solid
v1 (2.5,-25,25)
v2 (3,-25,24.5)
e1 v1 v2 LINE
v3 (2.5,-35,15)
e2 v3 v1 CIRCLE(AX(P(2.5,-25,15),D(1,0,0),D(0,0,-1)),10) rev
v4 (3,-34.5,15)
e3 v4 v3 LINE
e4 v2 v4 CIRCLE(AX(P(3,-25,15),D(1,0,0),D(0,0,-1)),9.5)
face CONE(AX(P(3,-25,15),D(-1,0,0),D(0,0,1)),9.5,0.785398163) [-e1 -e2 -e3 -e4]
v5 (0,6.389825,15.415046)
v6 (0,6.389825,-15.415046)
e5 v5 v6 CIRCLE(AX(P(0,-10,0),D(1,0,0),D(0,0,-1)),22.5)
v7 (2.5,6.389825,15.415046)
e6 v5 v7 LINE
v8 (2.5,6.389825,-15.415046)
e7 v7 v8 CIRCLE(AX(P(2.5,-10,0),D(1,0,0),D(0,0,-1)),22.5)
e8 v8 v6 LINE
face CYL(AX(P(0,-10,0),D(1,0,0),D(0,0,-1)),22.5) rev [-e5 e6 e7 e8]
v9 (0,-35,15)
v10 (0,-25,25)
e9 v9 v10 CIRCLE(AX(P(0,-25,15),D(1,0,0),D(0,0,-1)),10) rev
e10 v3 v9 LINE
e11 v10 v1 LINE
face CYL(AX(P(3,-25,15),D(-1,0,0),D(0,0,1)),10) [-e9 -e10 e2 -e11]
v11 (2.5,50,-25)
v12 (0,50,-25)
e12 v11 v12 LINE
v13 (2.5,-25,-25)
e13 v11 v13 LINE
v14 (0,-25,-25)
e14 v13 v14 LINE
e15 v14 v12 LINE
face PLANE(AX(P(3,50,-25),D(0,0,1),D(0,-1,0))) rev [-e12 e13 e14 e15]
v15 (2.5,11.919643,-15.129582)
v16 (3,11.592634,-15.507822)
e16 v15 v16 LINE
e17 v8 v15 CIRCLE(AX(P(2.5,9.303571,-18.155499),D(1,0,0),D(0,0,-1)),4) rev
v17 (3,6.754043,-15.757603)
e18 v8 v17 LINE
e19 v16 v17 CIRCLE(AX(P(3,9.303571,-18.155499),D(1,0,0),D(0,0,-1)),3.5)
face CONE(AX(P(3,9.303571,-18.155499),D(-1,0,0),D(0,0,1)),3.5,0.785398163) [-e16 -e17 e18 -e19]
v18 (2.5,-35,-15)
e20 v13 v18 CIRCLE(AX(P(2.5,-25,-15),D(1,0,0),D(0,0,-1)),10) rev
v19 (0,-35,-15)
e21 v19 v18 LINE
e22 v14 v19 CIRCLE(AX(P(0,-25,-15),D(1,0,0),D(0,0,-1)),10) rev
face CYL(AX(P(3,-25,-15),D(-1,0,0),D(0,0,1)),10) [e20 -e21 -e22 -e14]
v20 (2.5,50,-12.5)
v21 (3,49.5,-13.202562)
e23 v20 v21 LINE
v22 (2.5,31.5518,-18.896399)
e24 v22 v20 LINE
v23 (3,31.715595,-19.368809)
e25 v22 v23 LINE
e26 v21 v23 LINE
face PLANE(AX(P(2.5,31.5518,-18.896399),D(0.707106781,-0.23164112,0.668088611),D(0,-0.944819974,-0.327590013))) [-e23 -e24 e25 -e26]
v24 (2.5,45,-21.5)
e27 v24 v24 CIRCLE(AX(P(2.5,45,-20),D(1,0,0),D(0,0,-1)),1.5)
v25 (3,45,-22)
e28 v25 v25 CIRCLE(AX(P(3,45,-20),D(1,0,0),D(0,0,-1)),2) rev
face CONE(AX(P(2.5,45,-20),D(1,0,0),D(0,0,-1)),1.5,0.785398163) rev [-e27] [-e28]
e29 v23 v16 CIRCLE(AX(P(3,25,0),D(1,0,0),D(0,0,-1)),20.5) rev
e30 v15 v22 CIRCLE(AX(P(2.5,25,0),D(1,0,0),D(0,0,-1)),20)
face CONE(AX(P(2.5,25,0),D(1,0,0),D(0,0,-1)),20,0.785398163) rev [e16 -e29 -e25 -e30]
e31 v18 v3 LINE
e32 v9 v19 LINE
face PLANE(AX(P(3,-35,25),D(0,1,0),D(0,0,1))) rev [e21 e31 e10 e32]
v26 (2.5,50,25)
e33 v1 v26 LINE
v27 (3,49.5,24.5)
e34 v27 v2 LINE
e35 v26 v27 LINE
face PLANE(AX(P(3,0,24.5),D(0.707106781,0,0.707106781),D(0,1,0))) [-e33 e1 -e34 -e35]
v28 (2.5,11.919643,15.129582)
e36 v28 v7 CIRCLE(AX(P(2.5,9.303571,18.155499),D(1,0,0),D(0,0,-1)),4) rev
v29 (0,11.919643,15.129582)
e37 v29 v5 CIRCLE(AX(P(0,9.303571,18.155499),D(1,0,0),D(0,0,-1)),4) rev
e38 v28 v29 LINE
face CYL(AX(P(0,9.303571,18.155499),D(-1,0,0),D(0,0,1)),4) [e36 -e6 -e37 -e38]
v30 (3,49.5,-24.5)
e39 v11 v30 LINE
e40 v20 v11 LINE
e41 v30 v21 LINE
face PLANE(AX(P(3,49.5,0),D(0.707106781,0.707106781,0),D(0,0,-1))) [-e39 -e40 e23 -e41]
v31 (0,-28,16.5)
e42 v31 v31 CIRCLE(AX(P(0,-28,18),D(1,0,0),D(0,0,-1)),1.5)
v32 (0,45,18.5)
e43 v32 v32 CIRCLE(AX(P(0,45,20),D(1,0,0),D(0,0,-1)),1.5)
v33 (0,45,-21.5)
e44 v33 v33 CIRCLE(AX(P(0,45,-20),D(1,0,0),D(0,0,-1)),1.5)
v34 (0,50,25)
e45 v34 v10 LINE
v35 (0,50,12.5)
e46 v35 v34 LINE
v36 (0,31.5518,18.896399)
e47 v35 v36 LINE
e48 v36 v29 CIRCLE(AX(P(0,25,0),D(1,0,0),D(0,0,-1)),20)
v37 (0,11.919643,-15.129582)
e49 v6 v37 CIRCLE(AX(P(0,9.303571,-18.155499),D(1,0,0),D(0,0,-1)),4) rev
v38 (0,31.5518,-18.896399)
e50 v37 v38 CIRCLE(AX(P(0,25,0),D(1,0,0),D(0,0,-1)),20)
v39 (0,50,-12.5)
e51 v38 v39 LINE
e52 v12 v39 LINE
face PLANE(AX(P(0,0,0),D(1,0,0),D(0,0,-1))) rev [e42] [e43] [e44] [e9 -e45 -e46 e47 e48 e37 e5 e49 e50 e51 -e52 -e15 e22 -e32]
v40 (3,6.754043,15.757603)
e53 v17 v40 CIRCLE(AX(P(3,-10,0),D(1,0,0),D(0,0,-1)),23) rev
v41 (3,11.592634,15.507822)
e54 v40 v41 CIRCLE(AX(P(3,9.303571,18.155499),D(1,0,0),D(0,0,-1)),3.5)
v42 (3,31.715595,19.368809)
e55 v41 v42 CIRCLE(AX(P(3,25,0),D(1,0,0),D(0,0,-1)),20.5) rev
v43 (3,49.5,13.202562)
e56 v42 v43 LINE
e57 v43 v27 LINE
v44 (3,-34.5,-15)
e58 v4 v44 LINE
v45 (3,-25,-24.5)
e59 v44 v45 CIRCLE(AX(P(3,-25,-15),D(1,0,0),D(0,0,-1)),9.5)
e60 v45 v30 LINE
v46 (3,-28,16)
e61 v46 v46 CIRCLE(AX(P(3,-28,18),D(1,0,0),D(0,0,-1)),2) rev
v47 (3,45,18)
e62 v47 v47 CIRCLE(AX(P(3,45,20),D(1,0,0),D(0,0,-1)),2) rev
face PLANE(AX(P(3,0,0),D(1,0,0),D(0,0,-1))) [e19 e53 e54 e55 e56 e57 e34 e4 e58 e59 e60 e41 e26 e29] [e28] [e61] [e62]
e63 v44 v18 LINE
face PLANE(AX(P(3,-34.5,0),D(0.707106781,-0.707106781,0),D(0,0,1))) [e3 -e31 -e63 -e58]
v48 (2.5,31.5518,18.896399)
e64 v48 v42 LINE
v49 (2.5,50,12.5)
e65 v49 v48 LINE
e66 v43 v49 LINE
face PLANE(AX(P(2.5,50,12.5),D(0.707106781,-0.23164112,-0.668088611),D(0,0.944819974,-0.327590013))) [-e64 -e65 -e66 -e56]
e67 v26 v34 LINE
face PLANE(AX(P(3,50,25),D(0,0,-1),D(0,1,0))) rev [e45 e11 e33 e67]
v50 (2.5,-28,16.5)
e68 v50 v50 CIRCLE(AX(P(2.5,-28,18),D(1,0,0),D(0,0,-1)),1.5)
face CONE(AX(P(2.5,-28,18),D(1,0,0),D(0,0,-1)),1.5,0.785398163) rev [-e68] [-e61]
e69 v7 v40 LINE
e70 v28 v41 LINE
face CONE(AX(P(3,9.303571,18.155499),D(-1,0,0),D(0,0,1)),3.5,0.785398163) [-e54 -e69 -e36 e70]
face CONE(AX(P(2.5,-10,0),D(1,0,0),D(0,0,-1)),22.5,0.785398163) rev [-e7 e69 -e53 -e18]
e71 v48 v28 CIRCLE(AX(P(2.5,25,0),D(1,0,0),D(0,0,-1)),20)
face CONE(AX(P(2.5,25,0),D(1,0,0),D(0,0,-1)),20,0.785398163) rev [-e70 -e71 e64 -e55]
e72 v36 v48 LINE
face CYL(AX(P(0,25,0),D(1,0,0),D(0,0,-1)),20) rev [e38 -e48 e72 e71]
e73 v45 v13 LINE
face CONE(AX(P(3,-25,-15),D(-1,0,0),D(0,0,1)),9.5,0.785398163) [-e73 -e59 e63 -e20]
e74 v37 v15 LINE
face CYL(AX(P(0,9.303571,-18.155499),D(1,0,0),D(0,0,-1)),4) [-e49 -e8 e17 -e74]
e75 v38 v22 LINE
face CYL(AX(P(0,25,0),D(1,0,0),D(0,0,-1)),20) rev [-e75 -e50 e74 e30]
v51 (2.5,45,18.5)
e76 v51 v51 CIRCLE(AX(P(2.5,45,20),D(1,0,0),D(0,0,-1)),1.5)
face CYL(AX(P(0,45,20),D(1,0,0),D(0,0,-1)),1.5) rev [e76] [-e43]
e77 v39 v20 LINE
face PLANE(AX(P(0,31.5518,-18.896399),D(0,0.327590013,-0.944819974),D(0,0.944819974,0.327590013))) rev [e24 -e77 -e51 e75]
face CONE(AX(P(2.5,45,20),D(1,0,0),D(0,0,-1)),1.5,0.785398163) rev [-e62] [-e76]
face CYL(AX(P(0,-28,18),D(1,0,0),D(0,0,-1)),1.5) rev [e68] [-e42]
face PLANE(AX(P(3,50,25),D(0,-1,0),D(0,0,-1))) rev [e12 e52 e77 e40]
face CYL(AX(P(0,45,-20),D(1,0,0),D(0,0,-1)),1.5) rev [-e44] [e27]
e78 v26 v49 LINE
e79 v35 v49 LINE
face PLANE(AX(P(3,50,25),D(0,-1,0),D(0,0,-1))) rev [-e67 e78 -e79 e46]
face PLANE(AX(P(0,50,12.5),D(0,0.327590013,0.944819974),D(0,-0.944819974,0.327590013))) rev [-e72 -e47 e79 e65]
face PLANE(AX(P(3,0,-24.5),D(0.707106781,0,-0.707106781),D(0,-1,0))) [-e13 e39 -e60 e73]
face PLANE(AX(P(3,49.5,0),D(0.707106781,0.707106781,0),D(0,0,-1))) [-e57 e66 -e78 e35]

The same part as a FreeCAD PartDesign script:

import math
import FreeCAD as App
import Part
import Sketcher
from FreeCAD import Vector


def edges_at(feature, points):
    """Names of the edges that pass closest to the given points."""
    edges = feature.Shape.Edges
    near = lambda p: min(range(len(edges)), key=lambda i: edges[i].distToShape(Part.Vertex(*p))[0])
    return sorted({f"Edge{near(p) + 1}" for p in points})


def add_polygon(sketch, points):
    """Adds a closed chain of lines whose ends are joined by coincident constraints."""
    first, n = sketch.GeometryCount, len(points)
    for a, b in zip(points, points[1:] + points[:1]):
        sketch.addGeometry(Part.LineSegment(App.Vector(*a, 0), App.Vector(*b, 0)), False)
    for i in range(n):
        sketch.addConstraint(Sketcher.Constraint("Coincident", first + i, 2, first + (i + 1) % n, 1))

doc = App.newDocument("Part")
params = doc.addObject("Spreadsheet::Sheet", "Params")
for row, (alias, value) in enumerate([
    ("sketch1_width", "85 mm"),
    ("sketch1_height", "50 mm"),
    ("pad1_length", "3 mm"),
    ("fillet_radius", "10 mm"),
    ("sketch2_diameter", "3 mm"),
    ("pocket1_length", "3 mm"),
    ("chamfer_size", "0.5 mm"),
    ("sketch3_radius", "20 mm"),
    ("sketch3_height", "25 mm"),
    ("pocket2_length", "3 mm"),
    ("sketch4_diameter", "45 mm"),
    ("pocket3_length", "3 mm"),
    ("fillet2_radius", "4 mm"),
    ("chamfer2_size", "0.5 mm"),
    ("chamfer3_size", "0.5 mm"),
], start=1):
    params.set(f"A{row}", alias)
    params.set(f"B{row}", "=" + value)
    params.setAlias(f"B{row}", alias)

body = doc.addObject("PartDesign::Body", "Body")

# Sketch on YZ plane
sketch1 = body.newObject("Sketcher::SketchObject", "Sketch")
sketch1.AttachmentSupport = (doc.getObject("YZ_Plane"), [""])
sketch1.MapMode = "FlatFace"
add_polygon(sketch1, [(50, 25), (-35, 25), (-35, -25), (50, -25)])  # lines 0-3
sketch1.addConstraint(Sketcher.Constraint("Horizontal", 0))
sketch1.addConstraint(Sketcher.Constraint("Vertical", 1))
sketch1.addConstraint(Sketcher.Constraint("Horizontal", 2))
sketch1.addConstraint(Sketcher.Constraint("Vertical", 3))
sketch1.addConstraint(Sketcher.Constraint("DistanceX", 0, 2, 0, 1, 85.0))
sketch1.addConstraint(Sketcher.Constraint("DistanceY", 1, 2, 1, 1, 50.0))
sketch1.addConstraint(Sketcher.Constraint("DistanceX", 0, 2, -1, 1, 35.0))
sketch1.addConstraint(Sketcher.Constraint("DistanceY", -1, 1, 0, 2, 25.0))
sketch1.setExpression("Constraints[8]", "Params.sketch1_width")
sketch1.setExpression("Constraints[9]", "Params.sketch1_height")
pad1 = body.newObject("PartDesign::Pad", "Pad")
pad1.Profile = sketch1
pad1.setExpression("Length", "Params.pad1_length")
doc.recompute()

fillet = body.newObject("PartDesign::Fillet", "Fillet")
fillet.Base = (pad1, edges_at(pad1, [(1.5, -35, -25), (1.5, -35, 25)]))
fillet.setExpression("Radius", "Params.fillet_radius")

# Sketch on YZ plane
sketch2 = body.newObject("Sketcher::SketchObject", "Sketch001")
sketch2.AttachmentSupport = (doc.getObject("YZ_Plane"), [""])
sketch2.MapMode = "FlatFace"
sketch2.AttachmentOffset = App.Placement(Vector(0, 0, 3), App.Rotation())
sketch2.addGeometry(Part.Circle(Vector(45, -20, 0), Vector(0, 0, 1), 1.5), False)
sketch2.addGeometry(Part.Circle(Vector(45, 20, 0), Vector(0, 0, 1), 1.5), False)
sketch2.addGeometry(Part.Circle(Vector(-28, 18, 0), Vector(0, 0, 1), 1.5), False)
sketch2.addConstraint(Sketcher.Constraint("Equal", 0, 1))
sketch2.addConstraint(Sketcher.Constraint("Equal", 1, 2))
sketch2.addConstraint(Sketcher.Constraint("Symmetric", 0, 3, 1, 3, -1))
sketch2.addConstraint(Sketcher.Constraint("Diameter", 0, 3.0))
sketch2.addConstraint(Sketcher.Constraint("DistanceX", -1, 1, 0, 3, 45.0))
sketch2.addConstraint(Sketcher.Constraint("DistanceY", 0, 3, -1, 1, 20.0))
sketch2.addConstraint(Sketcher.Constraint("DistanceX", 2, 3, -1, 1, 28.0))
sketch2.addConstraint(Sketcher.Constraint("DistanceY", -1, 1, 2, 3, 18.0))
sketch2.setExpression("Constraints[3]", "Params.sketch2_diameter")
pocket1 = body.newObject("PartDesign::Pocket", "Pocket")
pocket1.Profile = sketch2
pocket1.setExpression("Length", "Params.pocket1_length")
doc.recompute()

chamfer = body.newObject("PartDesign::Chamfer", "Chamfer")
chamfer.Base = (pocket1, edges_at(pocket1, [
    (3, 12.5, -25),
    (3, 50, 0),
    (3, -35, 0),
    (3, -32.071, 22.071),
    (3, -32.071, -22.071),
    (3, 12.5, 25),
]))
chamfer.setExpression("Size", "Params.chamfer_size")

# Sketch on YZ plane
sketch3 = body.newObject("Sketcher::SketchObject", "Sketch002")
sketch3.AttachmentSupport = (doc.getObject("YZ_Plane"), [""])
sketch3.MapMode = "FlatFace"
sketch3.AttachmentOffset = App.Placement(Vector(0, 0, 3), App.Rotation())
sketch3.addGeometry(Part.LineSegment(Vector(50, -12.5, 0), Vector(50, 12.5, 0)), False)
sketch3.addGeometry(Part.LineSegment(Vector(50, 12.5, 0), Vector(31.5518, 18.896399, 0)), False)
sketch3.addGeometry(Part.ArcOfCircle(Part.Circle(Vector(25, 0, 0), Vector(0, 0, 1), 20), math.radians(70.877436), math.radians(289.122564)), False)
sketch3.addGeometry(Part.LineSegment(Vector(31.5518, -18.896399, 0), Vector(50, -12.5, 0)), False)
sketch3.addConstraint(Sketcher.Constraint("Coincident", 0, 2, 1, 1))
sketch3.addConstraint(Sketcher.Constraint("Tangent", 1, 2, 2, 1))
sketch3.addConstraint(Sketcher.Constraint("Tangent", 2, 2, 3, 1))
sketch3.addConstraint(Sketcher.Constraint("Coincident", 3, 2, 0, 1))
sketch3.addConstraint(Sketcher.Constraint("Vertical", 0))
sketch3.addConstraint(Sketcher.Constraint("Symmetric", 1, 2, 2, 2, -1))
sketch3.addConstraint(Sketcher.Constraint("Radius", 2, 20.0))
sketch3.addConstraint(Sketcher.Constraint("DistanceY", 0, 1, 0, 2, 25.0))
sketch3.addConstraint(Sketcher.Constraint("DistanceX", -1, 1, 2, 3, 25.0))
sketch3.addConstraint(Sketcher.Constraint("DistanceX", -1, 1, 0, 2, 50.0))
sketch3.setExpression("Constraints[6]", "Params.sketch3_radius")
sketch3.setExpression("Constraints[7]", "Params.sketch3_height")
pocket2 = body.newObject("PartDesign::Pocket", "Pocket001")
pocket2.Profile = sketch3
pocket2.setExpression("Length", "Params.pocket2_length")

# Sketch on YZ plane
sketch4 = body.newObject("Sketcher::SketchObject", "Sketch003")
sketch4.AttachmentSupport = (doc.getObject("YZ_Plane"), [""])
sketch4.MapMode = "FlatFace"
sketch4.AttachmentOffset = App.Placement(Vector(0, 0, 3), App.Rotation())
sketch4.addGeometry(Part.Circle(Vector(-10, 0, 0), Vector(0, 0, 1), 22.5), False)
sketch4.addConstraint(Sketcher.Constraint("PointOnObject", 0, 3, -1))
sketch4.addConstraint(Sketcher.Constraint("Diameter", 0, 45.0))
sketch4.addConstraint(Sketcher.Constraint("DistanceX", 0, 3, -1, 1, 10.0))
sketch4.setExpression("Constraints[1]", "Params.sketch4_diameter")
pocket3 = body.newObject("PartDesign::Pocket", "Pocket002")
pocket3.Profile = sketch4
pocket3.setExpression("Length", "Params.pocket3_length")
doc.recompute()

fillet2 = body.newObject("PartDesign::Fillet", "Fillet001")
fillet2.Base = (pocket3, edges_at(pocket3, [(1.5, 9.018, 12.024), (1.5, 9.018, -12.024)]))
fillet2.setExpression("Radius", "Params.fillet2_radius")
doc.recompute()

chamfer2 = body.newObject("PartDesign::Chamfer", "Chamfer001")
chamfer2.Base = (fillet2, edges_at(fillet2, [(3, 45, -18.5), (3, 45, 21.5), (3, -28, 19.5)]))
chamfer2.setExpression("Size", "Params.chamfer2_size")
doc.recompute()

chamfer3 = body.newObject("PartDesign::Chamfer", "Chamfer002")
chamfer3.Base = (chamfer2, edges_at(chamfer2, [
    (3, 40.526, -15.785),
    (3, 21.231, -19.642),
    (3, 9.097, -14.161),
    (3, -32.5, 0),
    (3, 40.526, 15.785),
    (3, 9.097, 14.161),
    (3, 21.231, 19.642),
]))
chamfer3.setExpression("Size", "Params.chamfer3_size")

doc.recompute()
